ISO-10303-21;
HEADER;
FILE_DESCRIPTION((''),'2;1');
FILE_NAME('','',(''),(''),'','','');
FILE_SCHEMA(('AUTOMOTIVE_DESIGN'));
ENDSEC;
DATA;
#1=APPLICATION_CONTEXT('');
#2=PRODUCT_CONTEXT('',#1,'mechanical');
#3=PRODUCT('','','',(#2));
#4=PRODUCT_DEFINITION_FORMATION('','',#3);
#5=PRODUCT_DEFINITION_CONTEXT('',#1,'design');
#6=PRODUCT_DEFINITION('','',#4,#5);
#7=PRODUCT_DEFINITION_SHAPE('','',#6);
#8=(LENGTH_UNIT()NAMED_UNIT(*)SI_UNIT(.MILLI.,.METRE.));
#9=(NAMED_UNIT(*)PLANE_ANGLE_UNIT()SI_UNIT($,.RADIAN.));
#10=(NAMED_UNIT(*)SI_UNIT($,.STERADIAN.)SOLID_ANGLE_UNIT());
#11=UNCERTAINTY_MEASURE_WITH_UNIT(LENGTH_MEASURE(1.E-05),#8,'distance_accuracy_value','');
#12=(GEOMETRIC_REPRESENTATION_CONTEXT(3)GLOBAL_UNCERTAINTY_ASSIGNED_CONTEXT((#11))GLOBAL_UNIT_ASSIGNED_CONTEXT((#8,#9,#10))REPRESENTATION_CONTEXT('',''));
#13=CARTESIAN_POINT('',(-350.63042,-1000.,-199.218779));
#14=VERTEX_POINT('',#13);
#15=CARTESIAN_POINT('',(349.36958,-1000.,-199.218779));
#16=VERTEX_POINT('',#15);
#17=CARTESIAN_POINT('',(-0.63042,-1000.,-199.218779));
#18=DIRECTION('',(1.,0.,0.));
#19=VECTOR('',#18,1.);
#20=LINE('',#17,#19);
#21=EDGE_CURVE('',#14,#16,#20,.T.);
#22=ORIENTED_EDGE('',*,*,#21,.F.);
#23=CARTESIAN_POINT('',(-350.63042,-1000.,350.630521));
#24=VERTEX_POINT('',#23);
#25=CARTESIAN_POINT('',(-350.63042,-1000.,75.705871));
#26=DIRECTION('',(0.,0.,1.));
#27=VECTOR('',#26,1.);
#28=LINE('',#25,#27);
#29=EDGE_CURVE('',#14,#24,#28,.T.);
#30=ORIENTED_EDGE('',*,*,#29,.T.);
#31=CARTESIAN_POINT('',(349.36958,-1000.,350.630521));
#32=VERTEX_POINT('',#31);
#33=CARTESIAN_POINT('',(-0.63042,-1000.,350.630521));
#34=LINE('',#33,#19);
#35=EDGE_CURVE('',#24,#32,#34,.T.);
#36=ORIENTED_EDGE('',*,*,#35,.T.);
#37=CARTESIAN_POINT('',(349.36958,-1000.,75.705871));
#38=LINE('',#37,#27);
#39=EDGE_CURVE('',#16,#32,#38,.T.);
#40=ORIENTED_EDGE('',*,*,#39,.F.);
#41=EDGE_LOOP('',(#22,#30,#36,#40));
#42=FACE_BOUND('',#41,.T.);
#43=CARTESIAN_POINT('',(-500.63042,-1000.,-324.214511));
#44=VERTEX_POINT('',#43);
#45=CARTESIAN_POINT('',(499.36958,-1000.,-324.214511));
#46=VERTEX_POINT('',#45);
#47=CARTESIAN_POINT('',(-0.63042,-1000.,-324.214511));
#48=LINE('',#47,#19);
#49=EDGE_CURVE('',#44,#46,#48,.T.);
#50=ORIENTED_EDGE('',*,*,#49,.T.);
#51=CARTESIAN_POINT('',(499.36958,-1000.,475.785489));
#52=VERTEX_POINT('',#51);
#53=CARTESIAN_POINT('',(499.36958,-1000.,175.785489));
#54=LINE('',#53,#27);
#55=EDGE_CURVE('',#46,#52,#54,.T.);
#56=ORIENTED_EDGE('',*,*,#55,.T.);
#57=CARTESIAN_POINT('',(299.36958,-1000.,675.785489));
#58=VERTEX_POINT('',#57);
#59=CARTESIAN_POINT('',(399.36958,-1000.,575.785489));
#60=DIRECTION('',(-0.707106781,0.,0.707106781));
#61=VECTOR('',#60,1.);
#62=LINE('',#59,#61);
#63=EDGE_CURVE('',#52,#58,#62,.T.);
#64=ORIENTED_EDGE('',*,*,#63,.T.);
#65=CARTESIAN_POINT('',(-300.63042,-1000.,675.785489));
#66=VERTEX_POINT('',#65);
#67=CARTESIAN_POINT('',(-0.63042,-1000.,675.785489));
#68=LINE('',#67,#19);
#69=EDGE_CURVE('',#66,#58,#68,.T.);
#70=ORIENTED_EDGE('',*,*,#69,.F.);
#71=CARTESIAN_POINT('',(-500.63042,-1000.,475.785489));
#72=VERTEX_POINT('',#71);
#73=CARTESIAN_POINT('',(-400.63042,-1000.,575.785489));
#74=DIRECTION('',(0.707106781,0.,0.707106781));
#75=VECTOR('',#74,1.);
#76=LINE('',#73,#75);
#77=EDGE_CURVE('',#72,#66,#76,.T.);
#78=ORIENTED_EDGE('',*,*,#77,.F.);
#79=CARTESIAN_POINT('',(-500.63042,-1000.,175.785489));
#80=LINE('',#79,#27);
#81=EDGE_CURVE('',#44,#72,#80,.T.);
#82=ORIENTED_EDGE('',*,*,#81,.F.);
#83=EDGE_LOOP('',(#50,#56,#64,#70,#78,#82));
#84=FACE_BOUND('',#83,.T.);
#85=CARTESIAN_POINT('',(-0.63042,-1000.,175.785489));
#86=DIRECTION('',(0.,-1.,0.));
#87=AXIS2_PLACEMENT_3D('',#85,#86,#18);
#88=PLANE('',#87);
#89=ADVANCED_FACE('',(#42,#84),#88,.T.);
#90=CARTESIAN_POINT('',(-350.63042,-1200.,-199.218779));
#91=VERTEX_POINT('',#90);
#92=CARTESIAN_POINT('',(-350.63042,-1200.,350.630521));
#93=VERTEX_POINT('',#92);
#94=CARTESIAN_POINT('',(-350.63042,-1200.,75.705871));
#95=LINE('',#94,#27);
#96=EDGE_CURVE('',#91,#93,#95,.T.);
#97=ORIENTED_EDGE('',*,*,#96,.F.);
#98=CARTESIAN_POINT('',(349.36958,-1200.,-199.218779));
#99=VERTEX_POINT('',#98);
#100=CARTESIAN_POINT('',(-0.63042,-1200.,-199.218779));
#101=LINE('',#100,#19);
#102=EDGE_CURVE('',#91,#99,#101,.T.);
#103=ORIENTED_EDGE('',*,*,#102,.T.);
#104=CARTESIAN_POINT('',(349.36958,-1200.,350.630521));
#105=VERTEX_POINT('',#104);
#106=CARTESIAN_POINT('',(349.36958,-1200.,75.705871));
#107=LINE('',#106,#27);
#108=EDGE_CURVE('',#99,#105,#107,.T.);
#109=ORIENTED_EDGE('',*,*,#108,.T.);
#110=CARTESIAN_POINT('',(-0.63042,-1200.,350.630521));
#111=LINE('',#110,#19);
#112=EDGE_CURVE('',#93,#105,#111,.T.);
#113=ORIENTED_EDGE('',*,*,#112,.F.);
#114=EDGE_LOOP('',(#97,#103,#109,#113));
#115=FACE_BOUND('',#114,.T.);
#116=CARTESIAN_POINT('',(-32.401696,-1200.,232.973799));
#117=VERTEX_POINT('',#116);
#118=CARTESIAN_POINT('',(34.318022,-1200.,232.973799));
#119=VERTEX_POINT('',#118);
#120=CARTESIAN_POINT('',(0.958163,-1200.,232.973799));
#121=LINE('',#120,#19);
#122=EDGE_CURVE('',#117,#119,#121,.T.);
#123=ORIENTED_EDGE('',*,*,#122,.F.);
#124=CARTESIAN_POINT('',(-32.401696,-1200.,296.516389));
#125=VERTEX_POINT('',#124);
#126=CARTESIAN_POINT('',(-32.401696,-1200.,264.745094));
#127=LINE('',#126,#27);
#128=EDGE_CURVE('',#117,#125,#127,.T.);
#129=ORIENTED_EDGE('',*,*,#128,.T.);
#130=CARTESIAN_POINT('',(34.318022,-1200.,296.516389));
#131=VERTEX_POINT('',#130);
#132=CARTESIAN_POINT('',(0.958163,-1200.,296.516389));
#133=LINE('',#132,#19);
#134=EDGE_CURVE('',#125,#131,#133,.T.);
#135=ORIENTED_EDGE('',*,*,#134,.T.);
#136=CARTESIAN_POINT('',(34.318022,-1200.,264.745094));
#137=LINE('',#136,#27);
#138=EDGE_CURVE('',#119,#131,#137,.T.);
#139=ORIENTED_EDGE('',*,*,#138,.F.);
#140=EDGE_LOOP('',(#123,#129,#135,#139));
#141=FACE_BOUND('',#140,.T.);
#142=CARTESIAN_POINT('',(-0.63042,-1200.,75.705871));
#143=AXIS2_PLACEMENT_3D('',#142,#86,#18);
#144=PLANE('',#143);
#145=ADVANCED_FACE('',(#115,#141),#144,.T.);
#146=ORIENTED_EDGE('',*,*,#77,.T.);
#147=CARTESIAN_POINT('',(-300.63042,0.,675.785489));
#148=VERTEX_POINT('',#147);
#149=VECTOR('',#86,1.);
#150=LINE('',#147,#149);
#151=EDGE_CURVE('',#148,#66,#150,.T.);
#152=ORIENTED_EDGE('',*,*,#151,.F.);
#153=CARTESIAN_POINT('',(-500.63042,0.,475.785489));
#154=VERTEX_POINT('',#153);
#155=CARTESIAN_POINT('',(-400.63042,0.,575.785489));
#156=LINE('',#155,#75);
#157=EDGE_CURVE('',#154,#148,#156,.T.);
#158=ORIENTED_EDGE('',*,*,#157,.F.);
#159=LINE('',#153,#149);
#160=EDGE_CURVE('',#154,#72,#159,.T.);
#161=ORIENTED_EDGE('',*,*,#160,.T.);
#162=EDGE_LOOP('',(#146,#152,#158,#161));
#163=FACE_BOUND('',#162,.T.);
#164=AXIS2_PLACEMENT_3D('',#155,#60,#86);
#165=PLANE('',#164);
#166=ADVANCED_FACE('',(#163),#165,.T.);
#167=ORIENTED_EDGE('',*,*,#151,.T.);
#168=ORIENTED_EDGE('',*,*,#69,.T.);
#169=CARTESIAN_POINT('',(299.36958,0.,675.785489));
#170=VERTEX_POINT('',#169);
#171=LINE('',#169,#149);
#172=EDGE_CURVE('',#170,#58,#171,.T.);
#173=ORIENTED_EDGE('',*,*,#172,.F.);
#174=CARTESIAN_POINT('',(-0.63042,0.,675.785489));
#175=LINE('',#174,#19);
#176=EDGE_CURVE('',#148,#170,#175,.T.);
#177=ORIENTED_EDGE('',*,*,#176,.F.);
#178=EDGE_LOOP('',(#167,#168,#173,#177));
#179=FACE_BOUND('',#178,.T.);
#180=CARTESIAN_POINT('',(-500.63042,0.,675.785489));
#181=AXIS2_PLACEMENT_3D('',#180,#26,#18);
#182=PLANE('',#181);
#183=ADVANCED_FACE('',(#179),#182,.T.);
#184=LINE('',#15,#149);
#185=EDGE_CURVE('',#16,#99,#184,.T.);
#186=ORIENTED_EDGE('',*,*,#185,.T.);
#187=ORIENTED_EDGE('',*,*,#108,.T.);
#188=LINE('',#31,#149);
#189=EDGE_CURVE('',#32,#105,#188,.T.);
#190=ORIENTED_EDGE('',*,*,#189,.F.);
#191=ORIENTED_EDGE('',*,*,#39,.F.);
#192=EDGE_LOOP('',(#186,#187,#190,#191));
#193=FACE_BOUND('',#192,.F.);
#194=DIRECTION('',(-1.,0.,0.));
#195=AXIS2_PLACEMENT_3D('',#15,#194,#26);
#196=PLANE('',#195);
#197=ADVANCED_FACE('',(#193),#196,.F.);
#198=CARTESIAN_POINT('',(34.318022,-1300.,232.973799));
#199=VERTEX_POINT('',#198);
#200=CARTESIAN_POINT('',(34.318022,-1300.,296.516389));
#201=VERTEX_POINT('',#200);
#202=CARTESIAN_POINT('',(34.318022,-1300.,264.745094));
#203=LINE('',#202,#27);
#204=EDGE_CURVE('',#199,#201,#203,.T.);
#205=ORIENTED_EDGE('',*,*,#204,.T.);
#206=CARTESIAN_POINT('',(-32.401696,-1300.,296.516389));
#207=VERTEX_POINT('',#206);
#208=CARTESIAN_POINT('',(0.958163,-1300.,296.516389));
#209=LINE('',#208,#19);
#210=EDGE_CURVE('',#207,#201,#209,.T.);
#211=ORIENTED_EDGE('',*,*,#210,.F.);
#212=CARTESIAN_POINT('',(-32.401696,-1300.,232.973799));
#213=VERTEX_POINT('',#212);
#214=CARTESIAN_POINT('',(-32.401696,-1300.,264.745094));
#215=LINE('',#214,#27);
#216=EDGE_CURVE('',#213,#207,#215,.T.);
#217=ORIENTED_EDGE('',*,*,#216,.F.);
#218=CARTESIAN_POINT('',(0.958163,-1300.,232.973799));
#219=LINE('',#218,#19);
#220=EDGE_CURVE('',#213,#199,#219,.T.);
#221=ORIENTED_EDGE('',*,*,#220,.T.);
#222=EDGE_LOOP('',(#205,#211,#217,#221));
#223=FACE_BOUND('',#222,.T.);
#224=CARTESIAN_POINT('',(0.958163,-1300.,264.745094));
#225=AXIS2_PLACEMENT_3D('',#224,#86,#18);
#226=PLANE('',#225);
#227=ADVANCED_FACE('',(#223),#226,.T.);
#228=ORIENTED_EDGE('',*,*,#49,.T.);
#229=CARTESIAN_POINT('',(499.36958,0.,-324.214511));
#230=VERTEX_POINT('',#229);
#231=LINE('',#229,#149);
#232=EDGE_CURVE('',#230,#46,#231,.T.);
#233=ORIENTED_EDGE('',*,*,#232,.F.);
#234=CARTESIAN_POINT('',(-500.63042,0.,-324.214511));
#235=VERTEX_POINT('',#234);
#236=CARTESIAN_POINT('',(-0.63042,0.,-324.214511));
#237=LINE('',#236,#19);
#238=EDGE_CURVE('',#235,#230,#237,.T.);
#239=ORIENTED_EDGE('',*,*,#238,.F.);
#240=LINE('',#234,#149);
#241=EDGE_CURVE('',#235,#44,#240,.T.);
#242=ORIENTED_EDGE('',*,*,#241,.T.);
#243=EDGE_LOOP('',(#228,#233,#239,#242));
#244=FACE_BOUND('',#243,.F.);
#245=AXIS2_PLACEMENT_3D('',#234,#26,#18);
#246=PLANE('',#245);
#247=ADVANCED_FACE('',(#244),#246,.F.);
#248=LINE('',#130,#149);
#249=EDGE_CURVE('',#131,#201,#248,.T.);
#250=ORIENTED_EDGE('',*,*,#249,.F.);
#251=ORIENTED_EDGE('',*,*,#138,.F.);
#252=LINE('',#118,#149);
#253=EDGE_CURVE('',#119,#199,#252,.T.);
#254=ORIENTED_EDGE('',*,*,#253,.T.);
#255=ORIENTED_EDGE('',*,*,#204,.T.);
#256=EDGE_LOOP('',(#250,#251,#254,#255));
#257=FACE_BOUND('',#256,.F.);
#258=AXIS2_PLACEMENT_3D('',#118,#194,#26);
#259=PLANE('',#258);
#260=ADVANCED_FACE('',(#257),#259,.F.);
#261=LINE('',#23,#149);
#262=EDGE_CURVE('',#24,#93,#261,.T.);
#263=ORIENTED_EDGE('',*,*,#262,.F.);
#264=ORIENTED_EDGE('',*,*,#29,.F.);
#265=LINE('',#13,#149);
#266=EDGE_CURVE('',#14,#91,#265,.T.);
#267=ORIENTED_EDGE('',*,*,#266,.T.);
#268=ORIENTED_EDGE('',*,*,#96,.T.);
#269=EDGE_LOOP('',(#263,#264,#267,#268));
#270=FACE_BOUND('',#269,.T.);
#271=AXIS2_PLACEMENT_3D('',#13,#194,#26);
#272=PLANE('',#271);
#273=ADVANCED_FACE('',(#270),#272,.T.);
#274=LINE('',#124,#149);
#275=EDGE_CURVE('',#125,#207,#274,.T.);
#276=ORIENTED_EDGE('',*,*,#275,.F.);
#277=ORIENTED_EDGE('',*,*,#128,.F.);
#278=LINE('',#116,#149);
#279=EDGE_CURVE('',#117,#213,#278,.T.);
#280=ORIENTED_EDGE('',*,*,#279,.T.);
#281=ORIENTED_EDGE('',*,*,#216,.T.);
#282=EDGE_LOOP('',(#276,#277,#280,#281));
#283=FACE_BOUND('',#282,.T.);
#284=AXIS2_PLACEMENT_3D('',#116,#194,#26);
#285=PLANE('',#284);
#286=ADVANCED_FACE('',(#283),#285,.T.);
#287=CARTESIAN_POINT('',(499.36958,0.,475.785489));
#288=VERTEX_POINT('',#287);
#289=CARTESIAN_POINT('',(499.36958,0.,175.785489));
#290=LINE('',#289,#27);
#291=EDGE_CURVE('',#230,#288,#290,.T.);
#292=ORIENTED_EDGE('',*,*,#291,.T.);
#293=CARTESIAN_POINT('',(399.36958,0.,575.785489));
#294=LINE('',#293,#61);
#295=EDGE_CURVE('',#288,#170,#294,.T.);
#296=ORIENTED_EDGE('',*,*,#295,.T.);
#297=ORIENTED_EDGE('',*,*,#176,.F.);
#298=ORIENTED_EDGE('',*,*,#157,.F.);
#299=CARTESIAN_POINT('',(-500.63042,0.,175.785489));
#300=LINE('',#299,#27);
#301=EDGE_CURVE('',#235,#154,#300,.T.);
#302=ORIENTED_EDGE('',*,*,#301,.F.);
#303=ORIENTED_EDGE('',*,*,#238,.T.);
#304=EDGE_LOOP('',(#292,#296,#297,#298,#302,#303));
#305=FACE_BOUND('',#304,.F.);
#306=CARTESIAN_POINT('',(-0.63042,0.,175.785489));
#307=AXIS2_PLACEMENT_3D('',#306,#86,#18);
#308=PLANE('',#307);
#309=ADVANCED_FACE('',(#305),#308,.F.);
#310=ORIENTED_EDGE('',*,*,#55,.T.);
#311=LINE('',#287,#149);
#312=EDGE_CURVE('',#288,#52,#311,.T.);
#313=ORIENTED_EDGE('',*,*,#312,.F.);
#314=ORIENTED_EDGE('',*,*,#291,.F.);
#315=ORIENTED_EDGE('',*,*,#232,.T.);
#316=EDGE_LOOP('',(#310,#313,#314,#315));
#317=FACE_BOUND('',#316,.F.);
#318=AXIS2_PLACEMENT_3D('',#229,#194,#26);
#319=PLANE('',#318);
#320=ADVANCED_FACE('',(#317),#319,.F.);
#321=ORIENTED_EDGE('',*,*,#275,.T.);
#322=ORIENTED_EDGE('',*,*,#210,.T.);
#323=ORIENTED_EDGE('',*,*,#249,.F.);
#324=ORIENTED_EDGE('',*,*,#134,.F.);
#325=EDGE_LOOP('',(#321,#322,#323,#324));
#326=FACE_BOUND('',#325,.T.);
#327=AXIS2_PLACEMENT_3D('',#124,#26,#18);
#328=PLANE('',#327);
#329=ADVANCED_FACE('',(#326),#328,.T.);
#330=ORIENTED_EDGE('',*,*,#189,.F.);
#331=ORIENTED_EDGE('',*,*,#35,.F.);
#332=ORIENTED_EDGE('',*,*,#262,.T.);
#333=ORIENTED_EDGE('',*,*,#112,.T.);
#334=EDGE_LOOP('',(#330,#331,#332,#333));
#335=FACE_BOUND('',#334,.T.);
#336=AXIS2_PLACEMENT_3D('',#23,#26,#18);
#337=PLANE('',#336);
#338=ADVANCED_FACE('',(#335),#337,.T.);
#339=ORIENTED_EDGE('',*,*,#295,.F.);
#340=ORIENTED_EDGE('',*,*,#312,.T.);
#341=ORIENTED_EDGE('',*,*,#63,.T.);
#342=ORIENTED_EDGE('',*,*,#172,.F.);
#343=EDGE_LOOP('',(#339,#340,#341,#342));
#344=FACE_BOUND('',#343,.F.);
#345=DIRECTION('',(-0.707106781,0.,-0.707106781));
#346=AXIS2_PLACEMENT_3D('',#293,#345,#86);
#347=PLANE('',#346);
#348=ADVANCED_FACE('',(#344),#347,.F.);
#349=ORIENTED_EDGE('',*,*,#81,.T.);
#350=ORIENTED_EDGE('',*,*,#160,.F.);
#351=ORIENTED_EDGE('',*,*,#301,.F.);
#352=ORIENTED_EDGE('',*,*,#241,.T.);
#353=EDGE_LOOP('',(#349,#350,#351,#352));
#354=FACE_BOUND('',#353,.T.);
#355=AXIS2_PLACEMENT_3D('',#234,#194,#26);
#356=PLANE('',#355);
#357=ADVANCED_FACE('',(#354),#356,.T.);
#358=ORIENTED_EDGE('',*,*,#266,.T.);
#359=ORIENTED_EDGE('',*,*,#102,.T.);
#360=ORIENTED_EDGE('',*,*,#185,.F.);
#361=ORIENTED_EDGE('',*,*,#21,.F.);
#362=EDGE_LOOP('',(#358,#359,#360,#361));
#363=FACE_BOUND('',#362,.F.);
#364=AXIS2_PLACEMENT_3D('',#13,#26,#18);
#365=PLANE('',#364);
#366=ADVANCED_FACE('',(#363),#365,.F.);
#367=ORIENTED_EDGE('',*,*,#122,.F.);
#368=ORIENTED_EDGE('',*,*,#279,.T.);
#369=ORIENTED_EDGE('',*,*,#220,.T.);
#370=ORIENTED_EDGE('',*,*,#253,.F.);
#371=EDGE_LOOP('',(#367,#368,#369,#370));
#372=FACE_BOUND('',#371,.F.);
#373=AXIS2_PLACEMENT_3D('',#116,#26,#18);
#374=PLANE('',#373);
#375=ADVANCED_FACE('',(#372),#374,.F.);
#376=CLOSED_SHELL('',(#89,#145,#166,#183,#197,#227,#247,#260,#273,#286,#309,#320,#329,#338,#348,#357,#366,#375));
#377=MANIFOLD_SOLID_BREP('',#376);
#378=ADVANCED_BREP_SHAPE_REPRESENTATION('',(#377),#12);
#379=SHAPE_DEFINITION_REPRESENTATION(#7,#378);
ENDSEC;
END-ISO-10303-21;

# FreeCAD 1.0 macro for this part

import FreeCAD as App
import Part
import Sketcher
from FreeCAD import Vector


def edges_at(feature, points):
    """Names of the edges that pass closest to the given points."""
    edges = feature.Shape.Edges
    near = lambda p: min(range(len(edges)), key=lambda i: edges[i].distToShape(Part.Vertex(*p))[0])
    return sorted({f"Edge{near(p) + 1}" for p in points})


def add_polygon(sketch, points):
    """Adds a closed chain of lines whose ends are joined by coincident constraints."""
    first, n = sketch.GeometryCount, len(points)
    for a, b in zip(points, points[1:] + points[:1]):
        sketch.addGeometry(Part.LineSegment(App.Vector(*a, 0), App.Vector(*b, 0)), False)
    for i in range(n):
        sketch.addConstraint(Sketcher.Constraint("Coincident", first + i, 2, first + (i + 1) % n, 1))

doc = App.newDocument("Part")
body = doc.addObject("PartDesign::Body", "Body")

# Sketch on XZ plane
sketch1 = doc.addObject("Sketcher::SketchObject", "Sketch")
body.addObject(sketch1)
sketch1.AttachmentSupport = (doc.XZ_Plane, [""])
sketch1.MapMode = "FlatFace"
add_polygon(sketch1, [(-501, 676), (-501, -324), (499, -324), (499, 676)])  # lines 0-3
sketch1.addConstraint([
    Sketcher.Constraint("Vertical", 0),
    Sketcher.Constraint("Horizontal", 1),
    Sketcher.Constraint("Vertical", 2),
    Sketcher.Constraint("Horizontal", 3),
    Sketcher.Constraint("Equal", 3, 0),
    Sketcher.Constraint("DistanceX", 1, 1, 1, 2, 1000.0),
    Sketcher.Constraint("DistanceX", 0, 2, -1, 1, 500.63042),
    Sketcher.Constraint("DistanceY", 0, 2, -1, 1, 324.214511),
])
pad1 = doc.addObject("PartDesign::Pad", "Pad")
body.addObject(pad1)
pad1.Profile = sketch1
pad1.Length = 1000
doc.recompute()

chamfer = doc.addObject("PartDesign::Chamfer", "Chamfer")
body.addObject(chamfer)
chamfer.Base = (pad1, edges_at(pad1, [(-500.63, -500, 675.785), (499.37, -500, 675.785)]))
chamfer.Size = 200

# Sketch on XZ plane
sketch2 = doc.addObject("Sketcher::SketchObject", "Sketch001")
body.addObject(sketch2)
sketch2.AttachmentSupport = (doc.XZ_Plane, [""])
sketch2.MapMode = "FlatFace"
sketch2.AttachmentOffset = App.Placement(Vector(0, 0, 1000), App.Rotation())
add_polygon(sketch2, [(-351, 351), (-351, -199), (349, -199), (349, 351)])  # lines 0-3
sketch2.addConstraint([
    Sketcher.Constraint("Vertical", 0),
    Sketcher.Constraint("Horizontal", 1),
    Sketcher.Constraint("Vertical", 2),
    Sketcher.Constraint("Horizontal", 3),
    Sketcher.Constraint("DistanceX", 1, 1, 1, 2, 700.0),
    Sketcher.Constraint("DistanceY", 0, 2, 0, 1, 549.8493),
    Sketcher.Constraint("DistanceX", 0, 2, -1, 1, 350.63042),
    Sketcher.Constraint("DistanceY", 0, 2, -1, 1, 199.218779),
])
pad2 = doc.addObject("PartDesign::Pad", "Pad001")
body.addObject(pad2)
pad2.Profile = sketch2
pad2.Length = 200

# Sketch on XZ plane
sketch3 = doc.addObject("Sketcher::SketchObject", "Sketch002")
body.addObject(sketch3)
sketch3.AttachmentSupport = (doc.XZ_Plane, [""])
sketch3.MapMode = "FlatFace"
sketch3.AttachmentOffset = App.Placement(Vector(0, 0, 1200), App.Rotation())
add_polygon(sketch3, [(-32, 297), (-32, 233), (34, 233), (34, 297)])  # lines 0-3
sketch3.addConstraint([
    Sketcher.Constraint("Vertical", 0),
    Sketcher.Constraint("Horizontal", 1),
    Sketcher.Constraint("Vertical", 2),
    Sketcher.Constraint("Horizontal", 3),
    Sketcher.Constraint("DistanceX", 1, 1, 1, 2, 66.719718),
    Sketcher.Constraint("DistanceY", 0, 2, 0, 1, 63.54259),
    Sketcher.Constraint("DistanceY", -1, 1, 0, 2, 232.973799),
    Sketcher.Constraint("DistanceX", 0, 2, -1, 1, 32.401696),
])
pad3 = doc.addObject("PartDesign::Pad", "Pad002")
body.addObject(pad3)
pad3.Profile = sketch3
pad3.Length = 100

doc.recompute()
